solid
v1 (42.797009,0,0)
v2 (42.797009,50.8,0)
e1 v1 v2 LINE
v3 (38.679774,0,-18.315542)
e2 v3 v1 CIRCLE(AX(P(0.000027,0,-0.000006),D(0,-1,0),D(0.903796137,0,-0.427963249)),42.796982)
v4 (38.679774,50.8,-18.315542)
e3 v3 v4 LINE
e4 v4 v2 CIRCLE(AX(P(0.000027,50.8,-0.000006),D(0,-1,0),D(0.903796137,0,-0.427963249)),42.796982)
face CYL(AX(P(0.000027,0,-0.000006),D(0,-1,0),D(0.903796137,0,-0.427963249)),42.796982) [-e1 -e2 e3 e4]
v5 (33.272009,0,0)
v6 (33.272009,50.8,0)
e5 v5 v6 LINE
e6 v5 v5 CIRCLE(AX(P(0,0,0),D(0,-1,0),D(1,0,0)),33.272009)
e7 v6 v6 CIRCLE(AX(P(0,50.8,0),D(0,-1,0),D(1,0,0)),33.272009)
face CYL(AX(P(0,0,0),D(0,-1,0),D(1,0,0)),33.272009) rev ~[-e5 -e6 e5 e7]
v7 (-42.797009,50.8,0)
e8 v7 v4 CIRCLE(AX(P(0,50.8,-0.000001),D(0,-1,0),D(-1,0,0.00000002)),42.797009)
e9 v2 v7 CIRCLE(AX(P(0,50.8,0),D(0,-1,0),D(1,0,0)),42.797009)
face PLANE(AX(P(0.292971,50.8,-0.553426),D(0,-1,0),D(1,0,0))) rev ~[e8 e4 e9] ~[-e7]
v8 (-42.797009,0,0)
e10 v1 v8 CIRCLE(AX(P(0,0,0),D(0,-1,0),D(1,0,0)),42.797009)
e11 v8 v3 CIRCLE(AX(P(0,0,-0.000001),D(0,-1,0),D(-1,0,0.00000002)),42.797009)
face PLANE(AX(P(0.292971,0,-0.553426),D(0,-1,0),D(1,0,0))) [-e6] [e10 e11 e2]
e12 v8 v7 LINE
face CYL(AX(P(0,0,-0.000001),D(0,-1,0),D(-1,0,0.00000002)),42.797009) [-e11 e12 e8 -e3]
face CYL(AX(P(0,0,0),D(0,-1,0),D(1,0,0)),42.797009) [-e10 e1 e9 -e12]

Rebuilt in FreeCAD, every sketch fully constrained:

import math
import FreeCAD as App
import Part
import Sketcher

V = App.Vector
Q = App.Units.Quantity

doc = App.newDocument("Part")
body = doc.addObject("PartDesign::Body", "Body")

sketch1 = doc.addObject("Sketcher::SketchObject", "Sketch")
body.addObject(sketch1)
sketch1.AttachmentSupport = (doc.XZ_Plane, [""])
sketch1.MapMode = "FlatFace"
sketch1.addGeometry([
    Part.ArcOfCircle(Part.Circle(V(0.000027, -0.000006, 0), V(0, 0, 1), 42.796982), math.radians(-25.338372), math.radians(0.000009)),
    Part.ArcOfCircle(Part.Circle(V(0, 0, 0), V(0, 0, 1), 42.797009), math.radians(0), math.radians(180)),
    Part.ArcOfCircle(Part.Circle(V(0, -0.000001, 0), V(0, 0, 1), 42.797009), math.radians(179.999999), math.radians(334.661637)),
    Part.Circle(V(0, 0, 0), V(0, 0, 1), 33.272009),
], False)
sketch1.addConstraint([
    Sketcher.Constraint("Coincident", 0, 2, 1, 1),
    Sketcher.Constraint("Coincident", 1, 2, 2, 1),
    Sketcher.Constraint("Coincident", 2, 2, 0, 1),
    Sketcher.Constraint("Coincident", 1, 3, -1, 1),
    Sketcher.Constraint("Coincident", 2, 3, -1, 1),
    Sketcher.Constraint("Coincident", 3, 3, -1, 1),
    Sketcher.Constraint("PointOnObject", 0, 2, -1),
    Sketcher.Constraint("PointOnObject", 1, 2, -1),
    Sketcher.Constraint("Radius", 1, Q("42.797009 mm")),
    Sketcher.Constraint("Diameter", 3, Q("66.544018 mm")),
    Sketcher.Constraint("Radius", 0, Q("42.796982 mm")),
    Sketcher.Constraint("DistanceY", 2, 2, -1, 1, Q("18.315542 mm")),
])
pad1 = doc.addObject("PartDesign::Pad", "Pad")
body.addObject(pad1)
pad1.Profile = sketch1
pad1.Length = Q("2 in")
pad1.Reversed = True

doc.recompute()
